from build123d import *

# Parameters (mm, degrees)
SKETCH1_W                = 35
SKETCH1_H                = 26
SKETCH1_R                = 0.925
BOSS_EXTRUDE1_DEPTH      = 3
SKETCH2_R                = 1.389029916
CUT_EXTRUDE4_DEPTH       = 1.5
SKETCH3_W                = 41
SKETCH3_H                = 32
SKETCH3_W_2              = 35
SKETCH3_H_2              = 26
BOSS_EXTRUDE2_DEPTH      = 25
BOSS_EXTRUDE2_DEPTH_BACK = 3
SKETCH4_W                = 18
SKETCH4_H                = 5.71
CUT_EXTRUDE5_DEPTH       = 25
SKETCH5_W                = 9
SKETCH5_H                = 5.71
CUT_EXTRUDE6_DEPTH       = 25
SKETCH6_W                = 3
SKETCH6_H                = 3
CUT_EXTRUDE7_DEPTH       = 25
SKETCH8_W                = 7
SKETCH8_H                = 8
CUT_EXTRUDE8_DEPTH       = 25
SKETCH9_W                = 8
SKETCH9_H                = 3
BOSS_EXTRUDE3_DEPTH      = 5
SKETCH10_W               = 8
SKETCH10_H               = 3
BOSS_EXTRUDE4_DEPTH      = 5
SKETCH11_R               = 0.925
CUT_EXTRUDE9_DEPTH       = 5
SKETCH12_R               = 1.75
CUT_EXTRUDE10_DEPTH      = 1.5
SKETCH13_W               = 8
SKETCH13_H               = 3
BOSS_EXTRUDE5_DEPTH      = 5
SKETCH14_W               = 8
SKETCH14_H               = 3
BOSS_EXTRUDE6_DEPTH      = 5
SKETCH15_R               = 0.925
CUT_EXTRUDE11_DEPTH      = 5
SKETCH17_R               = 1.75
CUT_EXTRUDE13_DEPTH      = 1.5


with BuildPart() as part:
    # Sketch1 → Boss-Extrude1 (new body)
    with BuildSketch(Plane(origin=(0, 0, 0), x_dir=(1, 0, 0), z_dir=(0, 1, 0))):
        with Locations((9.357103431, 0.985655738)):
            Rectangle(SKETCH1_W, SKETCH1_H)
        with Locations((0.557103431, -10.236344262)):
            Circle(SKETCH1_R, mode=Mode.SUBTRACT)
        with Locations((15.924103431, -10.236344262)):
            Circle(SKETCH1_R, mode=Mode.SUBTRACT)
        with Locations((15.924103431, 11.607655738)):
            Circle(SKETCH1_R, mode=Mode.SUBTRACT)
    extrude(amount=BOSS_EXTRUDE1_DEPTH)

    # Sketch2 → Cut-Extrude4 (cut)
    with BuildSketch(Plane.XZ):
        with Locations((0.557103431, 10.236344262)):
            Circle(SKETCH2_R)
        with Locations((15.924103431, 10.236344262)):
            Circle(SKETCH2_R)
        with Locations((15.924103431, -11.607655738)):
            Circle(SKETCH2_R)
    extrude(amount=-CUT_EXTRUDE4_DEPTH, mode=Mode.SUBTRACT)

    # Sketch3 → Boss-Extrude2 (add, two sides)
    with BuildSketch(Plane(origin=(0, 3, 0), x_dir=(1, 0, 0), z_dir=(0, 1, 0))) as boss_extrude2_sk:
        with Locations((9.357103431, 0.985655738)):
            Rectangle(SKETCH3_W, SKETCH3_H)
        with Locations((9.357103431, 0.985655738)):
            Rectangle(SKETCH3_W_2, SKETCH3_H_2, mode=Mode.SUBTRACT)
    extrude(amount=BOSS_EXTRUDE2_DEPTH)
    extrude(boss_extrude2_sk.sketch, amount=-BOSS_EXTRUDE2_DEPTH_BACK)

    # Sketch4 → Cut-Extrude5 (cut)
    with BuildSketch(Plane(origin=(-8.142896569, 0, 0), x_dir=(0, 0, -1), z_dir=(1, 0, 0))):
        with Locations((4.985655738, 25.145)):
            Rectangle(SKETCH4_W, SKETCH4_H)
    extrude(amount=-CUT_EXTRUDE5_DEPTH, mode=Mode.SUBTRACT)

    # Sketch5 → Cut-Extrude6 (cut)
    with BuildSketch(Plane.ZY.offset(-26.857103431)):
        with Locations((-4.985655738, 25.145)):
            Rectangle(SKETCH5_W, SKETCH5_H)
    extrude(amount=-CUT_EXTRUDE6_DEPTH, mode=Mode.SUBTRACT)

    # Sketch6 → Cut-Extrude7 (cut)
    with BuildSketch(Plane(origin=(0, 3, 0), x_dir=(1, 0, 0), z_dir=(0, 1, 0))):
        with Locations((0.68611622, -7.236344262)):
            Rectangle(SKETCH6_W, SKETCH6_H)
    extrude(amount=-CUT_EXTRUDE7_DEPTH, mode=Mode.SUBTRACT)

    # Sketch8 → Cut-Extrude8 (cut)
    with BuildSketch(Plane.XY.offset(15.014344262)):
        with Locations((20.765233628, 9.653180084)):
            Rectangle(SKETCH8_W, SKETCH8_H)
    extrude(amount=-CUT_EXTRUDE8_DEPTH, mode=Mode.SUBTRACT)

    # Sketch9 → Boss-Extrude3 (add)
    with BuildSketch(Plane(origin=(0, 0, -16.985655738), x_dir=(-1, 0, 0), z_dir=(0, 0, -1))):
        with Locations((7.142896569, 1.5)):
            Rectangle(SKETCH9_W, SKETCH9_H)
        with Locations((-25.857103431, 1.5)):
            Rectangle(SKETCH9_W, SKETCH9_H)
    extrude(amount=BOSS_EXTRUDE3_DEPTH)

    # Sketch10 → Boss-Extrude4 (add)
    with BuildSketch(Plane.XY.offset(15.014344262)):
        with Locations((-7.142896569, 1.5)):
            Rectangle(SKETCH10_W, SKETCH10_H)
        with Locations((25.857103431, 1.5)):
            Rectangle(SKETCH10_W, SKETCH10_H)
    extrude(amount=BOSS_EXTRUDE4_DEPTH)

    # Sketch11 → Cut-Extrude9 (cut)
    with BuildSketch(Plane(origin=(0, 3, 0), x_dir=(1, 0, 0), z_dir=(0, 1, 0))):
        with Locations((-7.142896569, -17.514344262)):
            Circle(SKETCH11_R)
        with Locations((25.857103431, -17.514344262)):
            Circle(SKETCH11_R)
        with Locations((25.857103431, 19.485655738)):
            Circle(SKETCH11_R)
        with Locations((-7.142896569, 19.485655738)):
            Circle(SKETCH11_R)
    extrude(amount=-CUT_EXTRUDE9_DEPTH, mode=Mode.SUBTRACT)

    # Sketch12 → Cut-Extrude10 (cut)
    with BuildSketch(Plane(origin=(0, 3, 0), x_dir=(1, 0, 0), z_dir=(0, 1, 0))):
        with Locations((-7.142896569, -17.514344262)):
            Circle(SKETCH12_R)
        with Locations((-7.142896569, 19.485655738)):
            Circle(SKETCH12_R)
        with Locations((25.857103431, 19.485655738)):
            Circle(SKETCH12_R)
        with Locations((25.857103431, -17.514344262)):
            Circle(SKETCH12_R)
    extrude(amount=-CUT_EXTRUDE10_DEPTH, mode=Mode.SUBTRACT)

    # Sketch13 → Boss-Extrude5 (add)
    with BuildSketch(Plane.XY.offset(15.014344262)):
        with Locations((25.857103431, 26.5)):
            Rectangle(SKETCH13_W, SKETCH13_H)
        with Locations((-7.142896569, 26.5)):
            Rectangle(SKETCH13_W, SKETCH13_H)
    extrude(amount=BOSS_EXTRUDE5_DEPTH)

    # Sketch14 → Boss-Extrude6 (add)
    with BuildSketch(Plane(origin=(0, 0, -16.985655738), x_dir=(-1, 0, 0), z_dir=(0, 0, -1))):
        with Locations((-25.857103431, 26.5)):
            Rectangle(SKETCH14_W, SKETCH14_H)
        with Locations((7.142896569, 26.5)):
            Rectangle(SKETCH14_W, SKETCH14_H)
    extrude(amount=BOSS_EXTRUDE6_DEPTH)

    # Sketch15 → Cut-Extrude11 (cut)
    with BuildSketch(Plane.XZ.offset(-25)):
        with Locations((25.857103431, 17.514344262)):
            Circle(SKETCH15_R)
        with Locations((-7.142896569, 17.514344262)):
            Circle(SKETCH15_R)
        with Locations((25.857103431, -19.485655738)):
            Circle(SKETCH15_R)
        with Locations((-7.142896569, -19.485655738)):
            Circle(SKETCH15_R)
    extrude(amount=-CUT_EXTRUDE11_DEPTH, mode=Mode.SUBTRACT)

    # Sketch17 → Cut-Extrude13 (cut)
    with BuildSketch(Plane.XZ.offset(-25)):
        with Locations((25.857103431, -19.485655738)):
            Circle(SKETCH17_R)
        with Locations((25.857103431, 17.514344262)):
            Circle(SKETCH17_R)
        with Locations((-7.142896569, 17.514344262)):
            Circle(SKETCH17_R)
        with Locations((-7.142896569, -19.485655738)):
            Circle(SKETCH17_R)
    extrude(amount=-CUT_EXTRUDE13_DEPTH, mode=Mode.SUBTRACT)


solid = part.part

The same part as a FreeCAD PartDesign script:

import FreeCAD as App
import Part
import Sketcher

V = App.Vector

doc = App.newDocument("Part")
body = doc.addObject("PartDesign::Body", "Body")

# Sketch on XZ plane
sketch1 = body.newObject("Sketcher::SketchObject", "Sketch")
sketch1.AttachmentSupport = (doc.getObject("XZ_Plane"), [""])
sketch1.MapMode = "FlatFace"
sketch1.addGeometry([
    Part.LineSegment(V(-8.142897, -13.985656, 0), V(-8.142897, 12.014344, 0)),  # 0
    Part.LineSegment(V(-8.142897, 12.014344, 0), V(26.857103, 12.014344, 0)),  # 1
    Part.LineSegment(V(26.857103, 12.014344, 0), V(26.857103, -13.985656, 0)),  # 2
    Part.LineSegment(V(26.857103, -13.985656, 0), V(-8.142897, -13.985656, 0)),  # 3
    Part.Circle(V(0.557103, 10.236344, 0), V(0, 0, 1), 0.925),  # 4
    Part.Circle(V(15.924103, 10.236344, 0), V(0, 0, 1), 0.925),  # 5
    Part.Circle(V(15.924103, -11.607656, 0), V(0, 0, 1), 0.925),  # 6
], False)
sketch1.addConstraint([
    Sketcher.Constraint("Coincident", 0, 2, 1, 1),
    Sketcher.Constraint("Coincident", 1, 2, 2, 1),
    Sketcher.Constraint("Coincident", 2, 2, 3, 1),
    Sketcher.Constraint("Coincident", 3, 2, 0, 1),
    Sketcher.Constraint("Vertical", 0),
    Sketcher.Constraint("Horizontal", 1),
    Sketcher.Constraint("Vertical", 2),
    Sketcher.Constraint("Horizontal", 3),
    Sketcher.Constraint("Equal", 4, 5),
    Sketcher.Constraint("Equal", 5, 6),
    Sketcher.Constraint("Horizontal", 4, 3, 5, 3),
    Sketcher.Constraint("Vertical", 5, 3, 6, 3),
    Sketcher.Constraint("Diameter", 4, 1.85),
    Sketcher.Constraint("DistanceX", 1, 1, 1, 2, 35.0),
    Sketcher.Constraint("DistanceY", 0, 1, 0, 2, 26.0),
    Sketcher.Constraint("DistanceX", 0, 2, 4, 3, 8.7),
    Sketcher.Constraint("DistanceX", 4, 3, 5, 3, 15.367),
    Sketcher.Constraint("DistanceY", 6, 3, 5, 3, 21.844),
    Sketcher.Constraint("DistanceY", 4, 3, 0, 2, 1.778),
    Sketcher.Constraint("DistanceX", -1, 1, 4, 3, 0.557103),
    Sketcher.Constraint("DistanceY", -1, 1, 4, 3, 10.236344),
])
pad1 = body.newObject("PartDesign::Pad", "Pad")
pad1.Profile = sketch1
pad1.Length = 3
pad1.Reversed = True

# Sketch on XZ plane
sketch2 = body.newObject("Sketcher::SketchObject", "Sketch001")
sketch2.AttachmentSupport = (doc.getObject("XZ_Plane"), [""])
sketch2.MapMode = "FlatFace"
sketch2.addGeometry([
    Part.Circle(V(0.557103, 10.236344, 0), V(0, 0, 1), 1.38903),
    Part.Circle(V(15.924103, 10.236344, 0), V(0, 0, 1), 1.38903),
    Part.Circle(V(15.924103, -11.607656, 0), V(0, 0, 1), 1.38903),
], False)
sketch2.addConstraint([
    Sketcher.Constraint("Equal", 0, 1),
    Sketcher.Constraint("Equal", 1, 2),
    Sketcher.Constraint("Horizontal", 0, 3, 1, 3),
    Sketcher.Constraint("Vertical", 1, 3, 2, 3),
    Sketcher.Constraint("Diameter", 0, 2.77806),
    Sketcher.Constraint("DistanceX", 0, 3, 1, 3, 15.367),
    Sketcher.Constraint("DistanceY", 2, 3, 1, 3, 21.844),
    Sketcher.Constraint("DistanceX", -1, 1, 0, 3, 0.557103),
    Sketcher.Constraint("DistanceY", -1, 1, 0, 3, 10.236344),
])
pocket1 = body.newObject("PartDesign::Pocket", "Pocket")
pocket1.Profile = sketch2
pocket1.Length = 1.5

# Sketch on XZ plane
sketch3 = body.newObject("Sketcher::SketchObject", "Sketch002")
sketch3.AttachmentSupport = (doc.getObject("XZ_Plane"), [""])
sketch3.MapMode = "FlatFace"
sketch3.AttachmentOffset = App.Placement(V(0, 0, -3), App.Rotation())
sketch3.addGeometry([
    Part.LineSegment(V(-11.142897, -16.985656, 0), V(-11.142897, 15.014344, 0)),  # 0
    Part.LineSegment(V(-11.142897, 15.014344, 0), V(29.857103, 15.014344, 0)),  # 1
    Part.LineSegment(V(29.857103, 15.014344, 0), V(29.857103, -16.985656, 0)),  # 2
    Part.LineSegment(V(29.857103, -16.985656, 0), V(-11.142897, -16.985656, 0)),  # 3
    Part.LineSegment(V(26.857103, 12.014344, 0), V(-8.142897, 12.014344, 0)),  # 4
    Part.LineSegment(V(-8.142897, 12.014344, 0), V(-8.142897, -13.985656, 0)),  # 5
    Part.LineSegment(V(-8.142897, -13.985656, 0), V(26.857103, -13.985656, 0)),  # 6
    Part.LineSegment(V(26.857103, -13.985656, 0), V(26.857103, 12.014344, 0)),  # 7
], False)
sketch3.addConstraint([
    Sketcher.Constraint("Coincident", 0, 2, 1, 1),
    Sketcher.Constraint("Coincident", 1, 2, 2, 1),
    Sketcher.Constraint("Coincident", 2, 2, 3, 1),
    Sketcher.Constraint("Coincident", 3, 2, 0, 1),
    Sketcher.Constraint("Coincident", 4, 2, 5, 1),
    Sketcher.Constraint("Coincident", 5, 2, 6, 1),
    Sketcher.Constraint("Coincident", 6, 2, 7, 1),
    Sketcher.Constraint("Coincident", 7, 2, 4, 1),
    Sketcher.Constraint("Vertical", 0),
    Sketcher.Constraint("Horizontal", 1),
    Sketcher.Constraint("Vertical", 2),
    Sketcher.Constraint("Horizontal", 3),
    Sketcher.Constraint("Horizontal", 4),
    Sketcher.Constraint("Vertical", 5),
    Sketcher.Constraint("Horizontal", 6),
    Sketcher.Constraint("Vertical", 7),
    Sketcher.Constraint("DistanceX", 1, 1, 1, 2, 41.0),
    Sketcher.Constraint("DistanceX", 4, 2, 4, 1, 35.0),
    Sketcher.Constraint("DistanceY", 0, 1, 0, 2, 32.0),
    Sketcher.Constraint("DistanceY", 5, 2, 5, 1, 26.0),
    Sketcher.Constraint("DistanceX", 0, 2, 4, 2, 3.0),
    Sketcher.Constraint("DistanceY", 4, 2, 0, 2, 3.0),
    Sketcher.Constraint("DistanceX", 0, 2, -1, 1, 11.142897),
    Sketcher.Constraint("DistanceY", -1, 1, 0, 2, 15.014344),
])
pad2 = body.newObject("PartDesign::Pad", "Pad001")
pad2.Profile = sketch3
pad2.Type = "TwoLengths"
pad2.Length = 25
pad2.Length2 = 3
pad2.Reversed = True

# Sketch on YZ plane
sketch4 = body.newObject("Sketcher::SketchObject", "Sketch003")
sketch4.AttachmentSupport = (doc.getObject("YZ_Plane"), [""])
sketch4.MapMode = "FlatFace"
sketch4.AttachmentOffset = App.Placement(V(0, 0, -8.142897), App.Rotation())
sketch4.addGeometry([
    Part.LineSegment(V(28, 4.014344, 0), V(22.29, 4.014344, 0)),
    Part.LineSegment(V(22.29, 4.014344, 0), V(22.29, -13.985656, 0)),
    Part.LineSegment(V(22.29, -13.985656, 0), V(28, -13.985656, 0)),
    Part.LineSegment(V(28, -13.985656, 0), V(28, 4.014344, 0)),
], False)
sketch4.addConstraint([
    Sketcher.Constraint("Coincident", 0, 2, 1, 1),
    Sketcher.Constraint("Coincident", 1, 2, 2, 1),
    Sketcher.Constraint("Coincident", 2, 2, 3, 1),
    Sketcher.Constraint("Coincident", 3, 2, 0, 1),
    Sketcher.Constraint("Horizontal", 0),
    Sketcher.Constraint("Vertical", 1),
    Sketcher.Constraint("Horizontal", 2),
    Sketcher.Constraint("Vertical", 3),
    Sketcher.Constraint("DistanceY", 1, 2, 1, 1, 18.0),
    Sketcher.Constraint("DistanceX", -1, 1, 2, 2, 28.0),
    Sketcher.Constraint("DistanceX", 0, 2, 0, 1, 5.71),
    Sketcher.Constraint("DistanceY", -1, 1, 0, 2, 4.014344),
])
pocket2 = body.newObject("PartDesign::Pocket", "Pocket001")
pocket2.Profile = sketch4
pocket2.Length = 25

# Sketch on YZ plane
sketch5 = body.newObject("Sketcher::SketchObject", "Sketch004")
sketch5.AttachmentSupport = (doc.getObject("YZ_Plane"), [""])
sketch5.MapMode = "FlatFace"
sketch5.AttachmentOffset = App.Placement(V(0, 0, 26.857103), App.Rotation())
sketch5.addGeometry([
    Part.LineSegment(V(28, -9.485656, 0), V(22.29, -9.485656, 0)),
    Part.LineSegment(V(22.29, -9.485656, 0), V(22.29, -0.485656, 0)),
    Part.LineSegment(V(22.29, -0.485656, 0), V(28, -0.485656, 0)),
    Part.LineSegment(V(28, -0.485656, 0), V(28, -9.485656, 0)),
], False)
sketch5.addConstraint([
    Sketcher.Constraint("Coincident", 0, 2, 1, 1),
    Sketcher.Constraint("Coincident", 1, 2, 2, 1),
    Sketcher.Constraint("Coincident", 2, 2, 3, 1),
    Sketcher.Constraint("Coincident", 3, 2, 0, 1),
    Sketcher.Constraint("Horizontal", 0),
    Sketcher.Constraint("Vertical", 1),
    Sketcher.Constraint("Horizontal", 2),
    Sketcher.Constraint("Vertical", 3),
    Sketcher.Constraint("DistanceY", 1, 1, 1, 2, 9.0),
    Sketcher.Constraint("DistanceX", -1, 1, 2, 2, 28.0),
    Sketcher.Constraint("DistanceX", 0, 2, 0, 1, 5.71),
    Sketcher.Constraint("DistanceY", 0, 2, -1, 1, 9.485656),
])
pocket3 = body.newObject("PartDesign::Pocket", "Pocket002")
pocket3.Profile = sketch5
pocket3.Length = 25
pocket3.Reversed = True

# Sketch on XZ plane
sketch6 = body.newObject("Sketcher::SketchObject", "Sketch005")
sketch6.AttachmentSupport = (doc.getObject("XZ_Plane"), [""])
sketch6.MapMode = "FlatFace"
sketch6.AttachmentOffset = App.Placement(V(0, 0, -3), App.Rotation())
sketch6.addGeometry([
    Part.LineSegment(V(-0.813884, 5.736344, 0), V(-0.813884, 8.736344, 0)),
    Part.LineSegment(V(-0.813884, 8.736344, 0), V(2.186116, 8.736344, 0)),
    Part.LineSegment(V(2.186116, 8.736344, 0), V(2.186116, 5.736344, 0)),
    Part.LineSegment(V(2.186116, 5.736344, 0), V(-0.813884, 5.736344, 0)),
], False)
sketch6.addConstraint([
    Sketcher.Constraint("Coincident", 0, 2, 1, 1),
    Sketcher.Constraint("Coincident", 1, 2, 2, 1),
    Sketcher.Constraint("Coincident", 2, 2, 3, 1),
    Sketcher.Constraint("Coincident", 3, 2, 0, 1),
    Sketcher.Constraint("Vertical", 0),
    Sketcher.Constraint("Horizontal", 1),
    Sketcher.Constraint("Vertical", 2),
    Sketcher.Constraint("Horizontal", 3),
    Sketcher.Constraint("Equal", 3, 0),
    Sketcher.Constraint("DistanceX", 1, 1, 1, 2, 3.0),
    Sketcher.Constraint("DistanceX", 0, 2, -1, 1, 0.813884),
    Sketcher.Constraint("DistanceY", -1, 1, 0, 2, 8.736344),
])
pocket4 = body.newObject("PartDesign::Pocket", "Pocket003")
pocket4.Profile = sketch6
pocket4.Length = 25
pocket4.Reversed = True

# Sketch on XY plane
sketch7 = body.newObject("Sketcher::SketchObject", "Sketch006")
sketch7.AttachmentSupport = (doc.getObject("XY_Plane"), [""])
sketch7.MapMode = "FlatFace"
sketch7.AttachmentOffset = App.Placement(V(0, 0, 15.014344), App.Rotation())
sketch7.addGeometry([
    Part.LineSegment(V(17.265234, 13.65318, 0), V(17.265234, 5.65318, 0)),
    Part.LineSegment(V(17.265234, 5.65318, 0), V(24.265234, 5.65318, 0)),
    Part.LineSegment(V(24.265234, 5.65318, 0), V(24.265234, 13.65318, 0)),
    Part.LineSegment(V(24.265234, 13.65318, 0), V(17.265234, 13.65318, 0)),
], False)
sketch7.addConstraint([
    Sketcher.Constraint("Coincident", 0, 2, 1, 1),
    Sketcher.Constraint("Coincident", 1, 2, 2, 1),
    Sketcher.Constraint("Coincident", 2, 2, 3, 1),
    Sketcher.Constraint("Coincident", 3, 2, 0, 1),
    Sketcher.Constraint("Vertical", 0),
    Sketcher.Constraint("Horizontal", 1),
    Sketcher.Constraint("Vertical", 2),
    Sketcher.Constraint("Horizontal", 3),
    Sketcher.Constraint("DistanceX", 1, 1, 1, 2, 7.0),
    Sketcher.Constraint("DistanceY", 0, 2, 0, 1, 8.0),
    Sketcher.Constraint("DistanceY", -1, 1, 0, 2, 5.65318),
    Sketcher.Constraint("DistanceX", -1, 1, 0, 2, 17.265234),
])
pocket5 = body.newObject("PartDesign::Pocket", "Pocket004")
pocket5.Profile = sketch7
pocket5.Length = 25

# Sketch on XY plane
sketch8 = body.newObject("Sketcher::SketchObject", "Sketch007")
sketch8.AttachmentSupport = (doc.getObject("XY_Plane"), [""])
sketch8.MapMode = "FlatFace"
sketch8.AttachmentOffset = App.Placement(V(0, 0, -16.985656), App.Rotation())
sketch8.addGeometry([
    Part.LineSegment(V(-3.142897, 3, 0), V(-3.142897, 0, 0)),  # 0
    Part.LineSegment(V(-3.142897, 0, 0), V(-11.142897, 0, 0)),  # 1
    Part.LineSegment(V(-11.142897, 0, 0), V(-11.142897, 3, 0)),  # 2
    Part.LineSegment(V(-11.142897, 3, 0), V(-3.142897, 3, 0)),  # 3
    Part.LineSegment(V(29.857103, 3, 0), V(29.857103, 0, 0)),  # 4
    Part.LineSegment(V(29.857103, 0, 0), V(21.857103, 0, 0)),  # 5
    Part.LineSegment(V(21.857103, 0, 0), V(21.857103, 3, 0)),  # 6
    Part.LineSegment(V(21.857103, 3, 0), V(29.857103, 3, 0)),  # 7
], False)
sketch8.addConstraint([
    Sketcher.Constraint("Coincident", 0, 2, 1, 1),
    Sketcher.Constraint("Coincident", 1, 2, 2, 1),
    Sketcher.Constraint("Coincident", 2, 2, 3, 1),
    Sketcher.Constraint("Coincident", 3, 2, 0, 1),
    Sketcher.Constraint("Coincident", 4, 2, 5, 1),
    Sketcher.Constraint("Coincident", 5, 2, 6, 1),
    Sketcher.Constraint("Coincident", 6, 2, 7, 1),
    Sketcher.Constraint("Coincident", 7, 2, 4, 1),
    Sketcher.Constraint("Vertical", 0),
    Sketcher.Constraint("Horizontal", 1),
    Sketcher.Constraint("Vertical", 2),
    Sketcher.Constraint("Horizontal", 3),
    Sketcher.Constraint("Vertical", 4),
    Sketcher.Constraint("Horizontal", 5),
    Sketcher.Constraint("Vertical", 6),
    Sketcher.Constraint("Horizontal", 7),
    Sketcher.Constraint("PointOnObject", 0, 2, -1),
    Sketcher.Constraint("PointOnObject", 4, 2, -1),
    Sketcher.Constraint("Horizontal", 3, 2, 6, 2),
    Sketcher.Constraint("Equal", 3, 5),
    Sketcher.Constraint("DistanceX", 1, 2, 1, 1, 8.0),
    Sketcher.Constraint("DistanceY", 0, 2, 0, 1, 3.0),
    Sketcher.Constraint("DistanceX", 0, 2, 4, 2, 33.0),
    Sketcher.Constraint("DistanceX", 0, 2, -1, 1, 3.142897),
])
pad3 = body.newObject("PartDesign::Pad", "Pad002")
pad3.Profile = sketch8
pad3.Length = 5
pad3.Reversed = True

# Sketch on XY plane
sketch9 = body.newObject("Sketcher::SketchObject", "Sketch008")
sketch9.AttachmentSupport = (doc.getObject("XY_Plane"), [""])
sketch9.MapMode = "FlatFace"
sketch9.AttachmentOffset = App.Placement(V(0, 0, 15.014344), App.Rotation())
sketch9.addGeometry([
    Part.LineSegment(V(-11.142897, 3, 0), V(-11.142897, 0, 0)),  # 0
    Part.LineSegment(V(-11.142897, 0, 0), V(-3.142897, 0, 0)),  # 1
    Part.LineSegment(V(-3.142897, 0, 0), V(-3.142897, 3, 0)),  # 2
    Part.LineSegment(V(-3.142897, 3, 0), V(-11.142897, 3, 0)),  # 3
    Part.LineSegment(V(21.857103, 3, 0), V(21.857103, 0, 0)),  # 4
    Part.LineSegment(V(21.857103, 0, 0), V(29.857103, 0, 0)),  # 5
    Part.LineSegment(V(29.857103, 0, 0), V(29.857103, 3, 0)),  # 6
    Part.LineSegment(V(29.857103, 3, 0), V(21.857103, 3, 0)),  # 7
], False)
sketch9.addConstraint([
    Sketcher.Constraint("Coincident", 0, 2, 1, 1),
    Sketcher.Constraint("Coincident", 1, 2, 2, 1),
    Sketcher.Constraint("Coincident", 2, 2, 3, 1),
    Sketcher.Constraint("Coincident", 3, 2, 0, 1),
    Sketcher.Constraint("Coincident", 4, 2, 5, 1),
    Sketcher.Constraint("Coincident", 5, 2, 6, 1),
    Sketcher.Constraint("Coincident", 6, 2, 7, 1),
    Sketcher.Constraint("Coincident", 7, 2, 4, 1),
    Sketcher.Constraint("Vertical", 0),
    Sketcher.Constraint("Horizontal", 1),
    Sketcher.Constraint("Vertical", 2),
    Sketcher.Constraint("Horizontal", 3),
    Sketcher.Constraint("Vertical", 4),
    Sketcher.Constraint("Horizontal", 5),
    Sketcher.Constraint("Vertical", 6),
    Sketcher.Constraint("Horizontal", 7),
    Sketcher.Constraint("PointOnObject", 0, 2, -1),
    Sketcher.Constraint("PointOnObject", 4, 2, -1),
    Sketcher.Constraint("Horizontal", 3, 2, 6, 2),
    Sketcher.Constraint("Equal", 3, 5),
    Sketcher.Constraint("DistanceX", 1, 1, 1, 2, 8.0),
    Sketcher.Constraint("DistanceY", 0, 2, 0, 1, 3.0),
    Sketcher.Constraint("DistanceX", 1, 2, 4, 2, 25.0),
    Sketcher.Constraint("DistanceX", 0, 2, -1, 1, 11.142897),
])
pad4 = body.newObject("PartDesign::Pad", "Pad003")
pad4.Profile = sketch9
pad4.Length = 5

# Sketch on XZ plane
sketch10 = body.newObject("Sketcher::SketchObject", "Sketch009")
sketch10.AttachmentSupport = (doc.getObject("XZ_Plane"), [""])
sketch10.MapMode = "FlatFace"
sketch10.AttachmentOffset = App.Placement(V(0, 0, -3), App.Rotation())
sketch10.addGeometry([
    Part.Circle(V(-7.142897, 17.514344, 0), V(0, 0, 1), 0.925),
    Part.Circle(V(25.857103, 17.514344, 0), V(0, 0, 1), 0.925),
    Part.Circle(V(25.857103, -19.485656, 0), V(0, 0, 1), 0.925),
    Part.Circle(V(-7.142897, -19.485656, 0), V(0, 0, 1), 0.925),
], False)
sketch10.addConstraint([
    Sketcher.Constraint("Equal", 0, 1),
    Sketcher.Constraint("Equal", 1, 2),
    Sketcher.Constraint("Equal", 2, 3),
    Sketcher.Constraint("Horizontal", 0, 3, 1, 3),
    Sketcher.Constraint("Horizontal", 2, 3, 3, 3),
    Sketcher.Constraint("Vertical", 1, 3, 2, 3),
    Sketcher.Constraint("Vertical", 0, 3, 3, 3),
    Sketcher.Constraint("Diameter", 0, 1.85),
    Sketcher.Constraint("DistanceX", 0, 3, 1, 3, 33.0),
    Sketcher.Constraint("DistanceY", 2, 3, 1, 3, 37.0),
    Sketcher.Constraint("DistanceX", 0, 3, -1, 1, 7.142897),
    Sketcher.Constraint("DistanceY", -1, 1, 0, 3, 17.514344),
])
pocket6 = body.newObject("PartDesign::Pocket", "Pocket005")
pocket6.Profile = sketch10
pocket6.Length = 5
pocket6.Reversed = True

# Sketch on XZ plane
sketch11 = body.newObject("Sketcher::SketchObject", "Sketch010")
sketch11.AttachmentSupport = (doc.getObject("XZ_Plane"), [""])
sketch11.MapMode = "FlatFace"
sketch11.AttachmentOffset = App.Placement(V(0, 0, -3), App.Rotation())
sketch11.addGeometry([
    Part.Circle(V(-7.142897, 17.514344, 0), V(0, 0, 1), 1.75),
    Part.Circle(V(-7.142897, -19.485656, 0), V(0, 0, 1), 1.75),
    Part.Circle(V(25.857103, -19.485656, 0), V(0, 0, 1), 1.75),
    Part.Circle(V(25.857103, 17.514344, 0), V(0, 0, 1), 1.75),
], False)
sketch11.addConstraint([
    Sketcher.Constraint("Equal", 0, 1),
    Sketcher.Constraint("Equal", 1, 2),
    Sketcher.Constraint("Equal", 2, 3),
    Sketcher.Constraint("Horizontal", 1, 3, 2, 3),
    Sketcher.Constraint("Horizontal", 0, 3, 3, 3),
    Sketcher.Constraint("Vertical", 0, 3, 1, 3),
    Sketcher.Constraint("Vertical", 2, 3, 3, 3),
    Sketcher.Constraint("Diameter", 0, 3.5),
    Sketcher.Constraint("DistanceY", 1, 3, 0, 3, 37.0),
    Sketcher.Constraint("DistanceX", 1, 3, 2, 3, 33.0),
    Sketcher.Constraint("DistanceX", 0, 3, -1, 1, 7.142897),
    Sketcher.Constraint("DistanceY", -1, 1, 0, 3, 17.514344),
])
pocket7 = body.newObject("PartDesign::Pocket", "Pocket006")
pocket7.Profile = sketch11
pocket7.Length = 1.5
pocket7.Reversed = True

# Sketch on XY plane
sketch12 = body.newObject("Sketcher::SketchObject", "Sketch011")
sketch12.AttachmentSupport = (doc.getObject("XY_Plane"), [""])
sketch12.MapMode = "FlatFace"
sketch12.AttachmentOffset = App.Placement(V(0, 0, 15.014344), App.Rotation())
sketch12.addGeometry([
    Part.LineSegment(V(21.857103, 28, 0), V(21.857103, 25, 0)),  # 0
    Part.LineSegment(V(21.857103, 25, 0), V(29.857103, 25, 0)),  # 1
    Part.LineSegment(V(29.857103, 25, 0), V(29.857103, 28, 0)),  # 2
    Part.LineSegment(V(29.857103, 28, 0), V(21.857103, 28, 0)),  # 3
    Part.LineSegment(V(-11.142897, 28, 0), V(-11.142897, 25, 0)),  # 4
    Part.LineSegment(V(-11.142897, 25, 0), V(-3.142897, 25, 0)),  # 5
    Part.LineSegment(V(-3.142897, 25, 0), V(-3.142897, 28, 0)),  # 6
    Part.LineSegment(V(-3.142897, 28, 0), V(-11.142897, 28, 0)),  # 7
], False)
sketch12.addConstraint([
    Sketcher.Constraint("Coincident", 0, 2, 1, 1),
    Sketcher.Constraint("Coincident", 1, 2, 2, 1),
    Sketcher.Constraint("Coincident", 2, 2, 3, 1),
    Sketcher.Constraint("Coincident", 3, 2, 0, 1),
    Sketcher.Constraint("Coincident", 4, 2, 5, 1),
    Sketcher.Constraint("Coincident", 5, 2, 6, 1),
    Sketcher.Constraint("Coincident", 6, 2, 7, 1),
    Sketcher.Constraint("Coincident", 7, 2, 4, 1),
    Sketcher.Constraint("Vertical", 0),
    Sketcher.Constraint("Horizontal", 1),
    Sketcher.Constraint("Vertical", 2),
    Sketcher.Constraint("Horizontal", 3),
    Sketcher.Constraint("Vertical", 4),
    Sketcher.Constraint("Horizontal", 5),
    Sketcher.Constraint("Vertical", 6),
    Sketcher.Constraint("Horizontal", 7),
    Sketcher.Constraint("Horizontal", 1, 2, 4, 2),
    Sketcher.Constraint("Horizontal", 3, 2, 6, 2),
    Sketcher.Constraint("Equal", 3, 5),
    Sketcher.Constraint("DistanceX", 1, 1, 1, 2, 8.0),
    Sketcher.Constraint("DistanceY", 0, 2, 0, 1, 3.0),
    Sketcher.Constraint("DistanceY", -1, 1, 0, 2, 25.0),
    Sketcher.Constraint("DistanceX", 4, 2, 0, 2, 33.0),
    Sketcher.Constraint("DistanceX", -1, 1, 0, 2, 21.857103),
])
pad5 = body.newObject("PartDesign::Pad", "Pad004")
pad5.Profile = sketch12
pad5.Length = 5

# Sketch on XY plane
sketch13 = body.newObject("Sketcher::SketchObject", "Sketch012")
sketch13.AttachmentSupport = (doc.getObject("XY_Plane"), [""])
sketch13.MapMode = "FlatFace"
sketch13.AttachmentOffset = App.Placement(V(0, 0, -16.985656), App.Rotation())
sketch13.addGeometry([
    Part.LineSegment(V(29.857103, 28, 0), V(29.857103, 25, 0)),  # 0
    Part.LineSegment(V(29.857103, 25, 0), V(21.857103, 25, 0)),  # 1
    Part.LineSegment(V(21.857103, 25, 0), V(21.857103, 28, 0)),  # 2
    Part.LineSegment(V(21.857103, 28, 0), V(29.857103, 28, 0)),  # 3
    Part.LineSegment(V(-3.142897, 28, 0), V(-3.142897, 25, 0)),  # 4
    Part.LineSegment(V(-3.142897, 25, 0), V(-11.142897, 25, 0)),  # 5
    Part.LineSegment(V(-11.142897, 25, 0), V(-11.142897, 28, 0)),  # 6
    Part.LineSegment(V(-11.142897, 28, 0), V(-3.142897, 28, 0)),  # 7
], False)
sketch13.addConstraint([
    Sketcher.Constraint("Coincident", 0, 2, 1, 1),
    Sketcher.Constraint("Coincident", 1, 2, 2, 1),
    Sketcher.Constraint("Coincident", 2, 2, 3, 1),
    Sketcher.Constraint("Coincident", 3, 2, 0, 1),
    Sketcher.Constraint("Coincident", 4, 2, 5, 1),
    Sketcher.Constraint("Coincident", 5, 2, 6, 1),
    Sketcher.Constraint("Coincident", 6, 2, 7, 1),
    Sketcher.Constraint("Coincident", 7, 2, 4, 1),
    Sketcher.Constraint("Vertical", 0),
    Sketcher.Constraint("Horizontal", 1),
    Sketcher.Constraint("Vertical", 2),
    Sketcher.Constraint("Horizontal", 3),
    Sketcher.Constraint("Vertical", 4),
    Sketcher.Constraint("Horizontal", 5),
    Sketcher.Constraint("Vertical", 6),
    Sketcher.Constraint("Horizontal", 7),
    Sketcher.Constraint("Horizontal", 1, 2, 4, 2),
    Sketcher.Constraint("Horizontal", 3, 2, 6, 2),
    Sketcher.Constraint("Equal", 3, 5),
    Sketcher.Constraint("DistanceX", 1, 2, 1, 1, 8.0),
    Sketcher.Constraint("DistanceY", 0, 2, 0, 1, 3.0),
    Sketcher.Constraint("DistanceY", -1, 1, 0, 2, 25.0),
    Sketcher.Constraint("DistanceX", 4, 2, 1, 2, 25.0),
    Sketcher.Constraint("DistanceX", -1, 1, 0, 2, 29.857103),
])
pad6 = body.newObject("PartDesign::Pad", "Pad005")
pad6.Profile = sketch13
pad6.Length = 5
pad6.Reversed = True

# Sketch on XZ plane
sketch14 = body.newObject("Sketcher::SketchObject", "Sketch013")
sketch14.AttachmentSupport = (doc.getObject("XZ_Plane"), [""])
sketch14.MapMode = "FlatFace"
sketch14.AttachmentOffset = App.Placement(V(0, 0, -25), App.Rotation())
sketch14.addGeometry([
    Part.Circle(V(25.857103, 17.514344, 0), V(0, 0, 1), 0.925),
    Part.Circle(V(-7.142897, 17.514344, 0), V(0, 0, 1), 0.925),
    Part.Circle(V(25.857103, -19.485656, 0), V(0, 0, 1), 0.925),
    Part.Circle(V(-7.142897, -19.485656, 0), V(0, 0, 1), 0.925),
], False)
sketch14.addConstraint([
    Sketcher.Constraint("Equal", 0, 1),
    Sketcher.Constraint("Equal", 1, 2),
    Sketcher.Constraint("Equal", 2, 3),
    Sketcher.Constraint("Horizontal", 0, 3, 1, 3),
    Sketcher.Constraint("Horizontal", 2, 3, 3, 3),
    Sketcher.Constraint("Vertical", 0, 3, 2, 3),
    Sketcher.Constraint("Vertical", 1, 3, 3, 3),
    Sketcher.Constraint("Diameter", 0, 1.85),
    Sketcher.Constraint("DistanceX", 1, 3, 0, 3, 33.0),
    Sketcher.Constraint("DistanceY", 2, 3, 0, 3, 37.0),
    Sketcher.Constraint("DistanceX", -1, 1, 0, 3, 25.857103),
    Sketcher.Constraint("DistanceY", -1, 1, 0, 3, 17.514344),
])
pocket8 = body.newObject("PartDesign::Pocket", "Pocket007")
pocket8.Profile = sketch14
pocket8.Length = 5

# Sketch on XZ plane
sketch15 = body.newObject("Sketcher::SketchObject", "Sketch014")
sketch15.AttachmentSupport = (doc.getObject("XZ_Plane"), [""])
sketch15.MapMode = "FlatFace"
sketch15.AttachmentOffset = App.Placement(V(0, 0, -25), App.Rotation())
sketch15.addGeometry([
    Part.Circle(V(25.857103, -19.485656, 0), V(0, 0, 1), 1.75),
    Part.Circle(V(25.857103, 17.514344, 0), V(0, 0, 1), 1.75),
    Part.Circle(V(-7.142897, 17.514344, 0), V(0, 0, 1), 1.75),
    Part.Circle(V(-7.142897, -19.485656, 0), V(0, 0, 1), 1.75),
], False)
sketch15.addConstraint([
    Sketcher.Constraint("Equal", 0, 1),
    Sketcher.Constraint("Equal", 1, 2),
    Sketcher.Constraint("Equal", 2, 3),
    Sketcher.Constraint("Horizontal", 1, 3, 2, 3),
    Sketcher.Constraint("Horizontal", 0, 3, 3, 3),
    Sketcher.Constraint("Vertical", 0, 3, 1, 3),
    Sketcher.Constraint("Vertical", 2, 3, 3, 3),
    Sketcher.Constraint("Diameter", 0, 3.5),
    Sketcher.Constraint("DistanceY", 0, 3, 1, 3, 37.0),
    Sketcher.Constraint("DistanceX", 2, 3, 1, 3, 33.0),
    Sketcher.Constraint("DistanceX", -1, 1, 0, 3, 25.857103),
    Sketcher.Constraint("DistanceY", 0, 3, -1, 1, 19.485656),
])
pocket9 = body.newObject("PartDesign::Pocket", "Pocket008")
pocket9.Profile = sketch15
pocket9.Length = 1.5

doc.recompute()
